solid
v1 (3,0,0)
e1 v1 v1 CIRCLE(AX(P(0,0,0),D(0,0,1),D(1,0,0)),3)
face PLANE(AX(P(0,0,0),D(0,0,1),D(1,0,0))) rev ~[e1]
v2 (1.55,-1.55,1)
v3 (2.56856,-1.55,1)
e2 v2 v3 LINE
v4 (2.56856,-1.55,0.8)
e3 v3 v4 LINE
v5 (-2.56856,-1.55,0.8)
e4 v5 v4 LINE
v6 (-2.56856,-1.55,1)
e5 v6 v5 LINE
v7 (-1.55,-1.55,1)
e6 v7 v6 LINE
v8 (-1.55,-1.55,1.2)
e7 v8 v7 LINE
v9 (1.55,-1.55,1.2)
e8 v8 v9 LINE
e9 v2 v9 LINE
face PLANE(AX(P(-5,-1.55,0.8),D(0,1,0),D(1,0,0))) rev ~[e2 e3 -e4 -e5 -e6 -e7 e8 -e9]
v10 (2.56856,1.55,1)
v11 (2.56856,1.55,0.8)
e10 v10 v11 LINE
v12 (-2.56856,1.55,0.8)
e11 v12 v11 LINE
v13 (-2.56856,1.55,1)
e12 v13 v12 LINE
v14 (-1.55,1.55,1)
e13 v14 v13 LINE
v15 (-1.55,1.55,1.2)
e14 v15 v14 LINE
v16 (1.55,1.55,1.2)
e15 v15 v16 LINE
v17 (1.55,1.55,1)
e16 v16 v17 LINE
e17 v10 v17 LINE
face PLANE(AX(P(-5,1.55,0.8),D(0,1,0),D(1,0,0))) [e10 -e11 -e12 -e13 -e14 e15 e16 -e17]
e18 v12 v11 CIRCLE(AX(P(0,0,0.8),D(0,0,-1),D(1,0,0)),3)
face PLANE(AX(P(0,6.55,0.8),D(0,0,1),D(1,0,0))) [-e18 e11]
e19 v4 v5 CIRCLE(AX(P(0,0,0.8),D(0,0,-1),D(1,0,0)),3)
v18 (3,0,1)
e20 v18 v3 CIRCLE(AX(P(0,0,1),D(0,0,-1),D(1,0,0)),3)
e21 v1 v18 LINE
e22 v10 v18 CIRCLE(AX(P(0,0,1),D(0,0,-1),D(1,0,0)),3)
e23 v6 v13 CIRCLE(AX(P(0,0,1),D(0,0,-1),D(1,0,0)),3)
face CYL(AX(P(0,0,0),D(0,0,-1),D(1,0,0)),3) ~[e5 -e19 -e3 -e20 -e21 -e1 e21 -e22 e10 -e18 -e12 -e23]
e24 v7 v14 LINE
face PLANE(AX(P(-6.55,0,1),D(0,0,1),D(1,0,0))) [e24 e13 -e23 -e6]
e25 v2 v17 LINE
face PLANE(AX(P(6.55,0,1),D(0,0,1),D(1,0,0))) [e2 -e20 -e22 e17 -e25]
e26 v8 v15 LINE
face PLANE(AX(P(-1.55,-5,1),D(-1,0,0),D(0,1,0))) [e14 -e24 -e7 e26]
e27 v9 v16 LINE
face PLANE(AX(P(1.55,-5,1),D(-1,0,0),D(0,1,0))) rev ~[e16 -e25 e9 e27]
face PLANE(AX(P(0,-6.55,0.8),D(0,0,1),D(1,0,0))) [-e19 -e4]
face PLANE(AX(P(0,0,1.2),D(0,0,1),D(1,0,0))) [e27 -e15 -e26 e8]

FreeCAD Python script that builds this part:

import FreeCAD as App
import Part
import Sketcher
from FreeCAD import Vector
Q = App.Units.Quantity


def add_polygon(sketch, points):
    """Adds a closed chain of lines whose ends are joined by coincident constraints."""
    first, n = sketch.GeometryCount, len(points)
    for a, b in zip(points, points[1:] + points[:1]):
        sketch.addGeometry(Part.LineSegment(App.Vector(*a, 0), App.Vector(*b, 0)), False)
    for i in range(n):
        sketch.addConstraint(Sketcher.Constraint("Coincident", first + i, 2, first + (i + 1) % n, 1))

doc = App.newDocument("Part")
body = doc.addObject("PartDesign::Body", "Body")

# Sketch on XY plane
sketch1 = body.newObject("Sketcher::SketchObject", "Sketch")
sketch1.AttachmentSupport = (doc.getObject("XY_Plane"), [""])
sketch1.MapMode = "FlatFace"
add_polygon(sketch1, [(-5, -2), (-5, -12), (5, -12), (5, -2)])  # lines 0-3
sketch1.addConstraint(Sketcher.Constraint("Vertical", 0))
sketch1.addConstraint(Sketcher.Constraint("Horizontal", 1))
sketch1.addConstraint(Sketcher.Constraint("Vertical", 2))
sketch1.addConstraint(Sketcher.Constraint("Horizontal", 3))
sketch1.addConstraint(Sketcher.Constraint("Equal", 3, 0))
sketch1.addConstraint(Sketcher.Constraint("DistanceX", 1, 1, 1, 2, Q("10 mm")))
sketch1.addConstraint(Sketcher.Constraint("DistanceX", 0, 2, -1, 1, Q("5 mm")))
sketch1.addConstraint(Sketcher.Constraint("DistanceY", 0, 2, -1, 1, Q("11.55 mm")))
pad1 = body.newObject("PartDesign::Pad", "Pad")
pad1.Profile = sketch1
pad1.Length = 0.4
body2 = doc.addObject("PartDesign::Body", "Body001")

# Sketch on XY plane
sketch2 = body2.newObject("Sketcher::SketchObject", "Sketch001")
sketch2.AttachmentSupport = (doc.getObject("XY_Plane001"), [""])
sketch2.MapMode = "FlatFace"
sketch2.AttachmentOffset = App.Placement(Vector(0, 0, 0.2), App.Rotation())
add_polygon(sketch2, [(2, 5), (2, -5), (12, -5), (12, 5)])  # lines 0-3
sketch2.addConstraint(Sketcher.Constraint("Vertical", 0))
sketch2.addConstraint(Sketcher.Constraint("Horizontal", 1))
sketch2.addConstraint(Sketcher.Constraint("Vertical", 2))
sketch2.addConstraint(Sketcher.Constraint("Horizontal", 3))
sketch2.addConstraint(Sketcher.Constraint("Equal", 3, 0))
sketch2.addConstraint(Sketcher.Constraint("DistanceX", 1, 1, 1, 2, Q("10 mm")))
sketch2.addConstraint(Sketcher.Constraint("DistanceY", 0, 2, -1, 1, Q("5 mm")))
sketch2.addConstraint(Sketcher.Constraint("DistanceX", -1, 1, 0, 2, Q("1.55 mm")))
pad2 = body2.newObject("PartDesign::Pad", "Pad001")
pad2.Profile = sketch2
pad2.Length = 0.2
body3 = doc.addObject("PartDesign::Body", "Body002")

# Sketch on XY plane
sketch3 = body3.newObject("Sketcher::SketchObject", "Sketch002")
sketch3.AttachmentSupport = (doc.getObject("XY_Plane002"), [""])
sketch3.MapMode = "FlatFace"
add_polygon(sketch3, [(-5, 12), (-5, 2), (5, 2), (5, 12)])  # lines 0-3
sketch3.addConstraint(Sketcher.Constraint("Vertical", 0))
sketch3.addConstraint(Sketcher.Constraint("Horizontal", 1))
sketch3.addConstraint(Sketcher.Constraint("Vertical", 2))
sketch3.addConstraint(Sketcher.Constraint("Horizontal", 3))
sketch3.addConstraint(Sketcher.Constraint("Equal", 3, 0))
sketch3.addConstraint(Sketcher.Constraint("DistanceX", 1, 1, 1, 2, Q("10 mm")))
sketch3.addConstraint(Sketcher.Constraint("DistanceX", 0, 2, -1, 1, Q("5 mm")))
sketch3.addConstraint(Sketcher.Constraint("DistanceY", -1, 1, 0, 2, Q("1.55 mm")))
pad3 = body3.newObject("PartDesign::Pad", "Pad002")
pad3.Profile = sketch3
pad3.Length = 0.4
body4 = doc.addObject("PartDesign::Body", "Body003")

# Sketch on XY plane
sketch4 = body4.newObject("Sketcher::SketchObject", "Sketch003")
sketch4.AttachmentSupport = (doc.getObject("XY_Plane003"), [""])
sketch4.MapMode = "FlatFace"
sketch4.AttachmentOffset = App.Placement(Vector(0, 0, 0.2), App.Rotation())
add_polygon(sketch4, [(-12, 5), (-12, -5), (-2, -5), (-2, 5)])  # lines 0-3
sketch4.addConstraint(Sketcher.Constraint("Vertical", 0))
sketch4.addConstraint(Sketcher.Constraint("Horizontal", 1))
sketch4.addConstraint(Sketcher.Constraint("Vertical", 2))
sketch4.addConstraint(Sketcher.Constraint("Horizontal", 3))
sketch4.addConstraint(Sketcher.Constraint("Equal", 3, 0))
sketch4.addConstraint(Sketcher.Constraint("DistanceX", 1, 1, 1, 2, Q("10 mm")))
sketch4.addConstraint(Sketcher.Constraint("DistanceY", 0, 2, -1, 1, Q("5 mm")))
sketch4.addConstraint(Sketcher.Constraint("DistanceX", 0, 2, -1, 1, Q("11.55 mm")))
pad4 = body4.newObject("PartDesign::Pad", "Pad003")
pad4.Profile = sketch4
pad4.Length = 0.2
doc.recompute()

boolean = body4.newObject("PartDesign::Boolean", "Boolean")
boolean.Type = "Fuse"
boolean.addObjects([body])
doc.recompute()

boolean2 = body4.newObject("PartDesign::Boolean", "Boolean001")
boolean2.Type = "Fuse"
boolean2.addObjects([body2])
doc.recompute()

boolean3 = body4.newObject("PartDesign::Boolean", "Boolean002")
boolean3.Type = "Fuse"
boolean3.addObjects([body3])
body5 = doc.addObject("PartDesign::Body", "Body004")
doc.recompute()

body4.Placement = App.Placement(Vector(0, 0, 0.8), App.Rotation(Vector(0, 0, 1), 0))
boolean4 = body5.newObject("PartDesign::Boolean", "Boolean003")
boolean4.Type = "Fuse"
boolean4.addObjects([body4])
body6 = doc.addObject("PartDesign::Body", "Body005")

# Sketch on XY plane
sketch5 = body6.newObject("Sketcher::SketchObject", "Sketch004")
sketch5.AttachmentSupport = (doc.getObject("XY_Plane005"), [""])
sketch5.MapMode = "FlatFace"
sketch5.addGeometry(Part.Circle(Vector(0, 0, 0), Vector(0, 0, 1), 3), False)
sketch5.addConstraint(Sketcher.Constraint("Coincident", 0, 3, -1, 1))
sketch5.addConstraint(Sketcher.Constraint("Diameter", 0, Q("6 mm")))
pad5 = body6.newObject("PartDesign::Pad", "Pad004")
pad5.Profile = sketch5
pad5.Length = 1.2
doc.recompute()

boolean5 = body6.newObject("PartDesign::Boolean", "Boolean004")
boolean5.Type = "Cut"
boolean5.addObjects([body5])

doc.recompute()
